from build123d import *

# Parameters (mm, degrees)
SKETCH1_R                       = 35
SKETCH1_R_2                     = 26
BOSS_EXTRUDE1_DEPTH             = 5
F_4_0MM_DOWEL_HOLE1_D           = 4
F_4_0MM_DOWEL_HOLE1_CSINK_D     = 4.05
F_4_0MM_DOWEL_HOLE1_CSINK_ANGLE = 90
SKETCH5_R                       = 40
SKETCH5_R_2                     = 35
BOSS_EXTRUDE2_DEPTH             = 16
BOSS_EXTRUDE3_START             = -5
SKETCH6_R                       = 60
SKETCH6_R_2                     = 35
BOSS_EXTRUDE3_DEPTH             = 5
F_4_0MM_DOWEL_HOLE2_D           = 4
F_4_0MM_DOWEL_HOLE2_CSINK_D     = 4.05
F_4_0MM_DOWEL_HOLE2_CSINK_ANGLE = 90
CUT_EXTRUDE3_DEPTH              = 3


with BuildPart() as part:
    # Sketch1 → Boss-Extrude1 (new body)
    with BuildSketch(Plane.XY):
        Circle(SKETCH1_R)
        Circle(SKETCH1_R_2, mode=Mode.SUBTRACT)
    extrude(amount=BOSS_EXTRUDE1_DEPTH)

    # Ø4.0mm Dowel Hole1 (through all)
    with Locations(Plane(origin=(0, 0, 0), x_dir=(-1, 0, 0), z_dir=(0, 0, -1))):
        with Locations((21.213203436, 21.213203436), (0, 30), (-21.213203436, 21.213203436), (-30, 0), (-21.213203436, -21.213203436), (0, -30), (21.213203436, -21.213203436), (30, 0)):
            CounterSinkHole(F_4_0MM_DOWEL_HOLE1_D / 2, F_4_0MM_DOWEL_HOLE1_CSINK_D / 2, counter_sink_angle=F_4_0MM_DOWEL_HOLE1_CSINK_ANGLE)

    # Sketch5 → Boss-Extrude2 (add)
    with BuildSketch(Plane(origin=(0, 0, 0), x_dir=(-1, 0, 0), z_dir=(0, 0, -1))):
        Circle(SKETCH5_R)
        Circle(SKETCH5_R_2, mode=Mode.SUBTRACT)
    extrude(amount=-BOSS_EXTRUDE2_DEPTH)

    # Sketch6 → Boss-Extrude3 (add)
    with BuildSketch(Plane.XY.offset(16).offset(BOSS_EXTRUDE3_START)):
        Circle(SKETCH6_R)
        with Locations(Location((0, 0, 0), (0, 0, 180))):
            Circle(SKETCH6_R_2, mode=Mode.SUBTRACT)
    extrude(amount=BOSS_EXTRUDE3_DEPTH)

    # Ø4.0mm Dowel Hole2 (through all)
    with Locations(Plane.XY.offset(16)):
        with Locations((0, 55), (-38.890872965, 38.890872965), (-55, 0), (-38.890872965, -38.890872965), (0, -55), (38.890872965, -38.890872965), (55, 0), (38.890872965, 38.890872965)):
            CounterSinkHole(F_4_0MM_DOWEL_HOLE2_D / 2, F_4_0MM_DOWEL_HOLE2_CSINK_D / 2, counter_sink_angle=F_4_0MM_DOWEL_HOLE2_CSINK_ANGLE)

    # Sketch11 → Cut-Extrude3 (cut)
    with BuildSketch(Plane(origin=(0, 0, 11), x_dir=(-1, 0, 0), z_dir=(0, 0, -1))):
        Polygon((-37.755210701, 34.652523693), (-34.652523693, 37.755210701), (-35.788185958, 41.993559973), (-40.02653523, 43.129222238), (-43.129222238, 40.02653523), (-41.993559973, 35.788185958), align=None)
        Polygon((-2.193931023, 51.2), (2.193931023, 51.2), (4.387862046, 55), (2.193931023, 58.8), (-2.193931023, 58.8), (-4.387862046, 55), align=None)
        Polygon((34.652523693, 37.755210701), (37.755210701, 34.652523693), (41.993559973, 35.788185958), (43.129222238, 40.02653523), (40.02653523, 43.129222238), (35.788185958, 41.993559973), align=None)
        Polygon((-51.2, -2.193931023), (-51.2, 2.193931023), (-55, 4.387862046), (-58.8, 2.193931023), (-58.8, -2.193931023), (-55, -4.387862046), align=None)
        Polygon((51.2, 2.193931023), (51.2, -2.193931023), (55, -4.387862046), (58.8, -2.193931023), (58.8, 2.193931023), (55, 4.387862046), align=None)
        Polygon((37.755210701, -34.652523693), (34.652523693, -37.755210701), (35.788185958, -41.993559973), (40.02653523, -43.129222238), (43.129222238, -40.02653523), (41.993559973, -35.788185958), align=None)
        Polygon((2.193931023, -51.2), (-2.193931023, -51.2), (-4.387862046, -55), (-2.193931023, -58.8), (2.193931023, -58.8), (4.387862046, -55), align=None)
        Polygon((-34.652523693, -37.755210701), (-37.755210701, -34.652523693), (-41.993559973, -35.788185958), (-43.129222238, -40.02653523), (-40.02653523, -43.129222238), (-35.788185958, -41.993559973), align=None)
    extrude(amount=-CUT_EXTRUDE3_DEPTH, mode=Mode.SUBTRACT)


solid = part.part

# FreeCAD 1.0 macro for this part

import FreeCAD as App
import Part
import Sketcher
Q = App.Units.Quantity


def add_polygon(sketch, points):
    """Adds a closed chain of lines whose ends are joined by coincident constraints."""
    first, n = sketch.GeometryCount, len(points)
    for a, b in zip(points, points[1:] + points[:1]):
        sketch.addGeometry(Part.LineSegment(App.Vector(*a, 0), App.Vector(*b, 0)), False)
    for i in range(n):
        sketch.addConstraint(Sketcher.Constraint("Coincident", first + i, 2, first + (i + 1) % n, 1))

doc = App.newDocument("Part")
body = doc.addObject("PartDesign::Body", "Body")

sketch1 = body.newObject("Sketcher::SketchObject", "Sketch")
sketch1.AttachmentSupport = (doc.getObject("XY_Plane"), [""])
sketch1.MapMode = "FlatFace"
sketch1.addGeometry(Part.Circle(App.Vector(0, 0, 0), App.Vector(0, 0, 1), 35), False)
sketch1.addGeometry(Part.Circle(App.Vector(0, 0, 0), App.Vector(0, 0, 1), 26), False)
sketch1.addConstraint(Sketcher.Constraint("Coincident", 0, 3, -1, 1))
sketch1.addConstraint(Sketcher.Constraint("Coincident", 1, 3, -1, 1))
sketch1.addConstraint(Sketcher.Constraint("Diameter", 0, Q("70 mm")))
sketch1.addConstraint(Sketcher.Constraint("Diameter", 1, Q("52 mm")))
pad1 = body.newObject("PartDesign::Pad", "Pad")
pad1.Profile = sketch1
pad1.Length = 5

sketch2 = body.newObject("Sketcher::SketchObject", "Sketch001")
sketch2.AttachmentSupport = (doc.getObject("XY_Plane"), [""])
sketch2.MapMode = "FlatFace"
sketch2.addGeometry(Part.Circle(App.Vector(-21.2, 21.2, 0), App.Vector(0, 0, 1), 2), False)
sketch2.addGeometry(Part.Circle(App.Vector(0, 30, 0), App.Vector(0, 0, 1), 2), False)
sketch2.addGeometry(Part.Circle(App.Vector(21.2, 21.2, 0), App.Vector(0, 0, 1), 2), False)
sketch2.addGeometry(Part.Circle(App.Vector(30, 0, 0), App.Vector(0, 0, 1), 2), False)
sketch2.addGeometry(Part.Circle(App.Vector(21.2, -21.2, 0), App.Vector(0, 0, 1), 2), False)
sketch2.addGeometry(Part.Circle(App.Vector(0, -30, 0), App.Vector(0, 0, 1), 2), False)
sketch2.addGeometry(Part.Circle(App.Vector(-21.2, -21.2, 0), App.Vector(0, 0, 1), 2), False)
sketch2.addGeometry(Part.Circle(App.Vector(-30, 0, 0), App.Vector(0, 0, 1), 2), False)
sketch2.addConstraint(Sketcher.Constraint("Equal", 0, 1))
sketch2.addConstraint(Sketcher.Constraint("Equal", 1, 2))
sketch2.addConstraint(Sketcher.Constraint("Equal", 2, 3))
sketch2.addConstraint(Sketcher.Constraint("Equal", 3, 4))
sketch2.addConstraint(Sketcher.Constraint("Equal", 4, 5))
sketch2.addConstraint(Sketcher.Constraint("Equal", 5, 6))
sketch2.addConstraint(Sketcher.Constraint("Equal", 6, 7))
sketch2.addConstraint(Sketcher.Constraint("Symmetric", 0, 3, 4, 3, -1, 1))
sketch2.addConstraint(Sketcher.Constraint("Symmetric", 1, 3, 5, 3, -1, 1))
sketch2.addConstraint(Sketcher.Constraint("Symmetric", 2, 3, 6, 3, -1, 1))
sketch2.addConstraint(Sketcher.Constraint("Symmetric", 3, 3, 7, 3, -1, 1))
sketch2.addConstraint(Sketcher.Constraint("Symmetric", 0, 3, 2, 3, -2))
sketch2.addConstraint(Sketcher.Constraint("PointOnObject", 1, 3, -2))
sketch2.addConstraint(Sketcher.Constraint("PointOnObject", 3, 3, -1))
sketch2.addConstraint(Sketcher.Constraint("Diameter", 0, Q("4 mm")))
sketch2.addConstraint(Sketcher.Constraint("DistanceY", -1, 1, 1, 3, Q("30 mm")))
sketch2.addConstraint(Sketcher.Constraint("DistanceX", -1, 1, 3, 3, Q("30 mm")))
sketch2.addConstraint(Sketcher.Constraint("DistanceX", 0, 3, -1, 1, Q("21.213203 mm")))
sketch2.addConstraint(Sketcher.Constraint("DistanceY", -1, 1, 0, 3, Q("21.213203 mm")))
doc.recompute()
hole = body.newObject("PartDesign::Hole", "Hole")
hole.Profile = sketch2
hole.ThreadType = "None"
hole.Diameter = 4
hole.DepthType = "ThroughAll"
hole.HoleCutType = "Countersink"
hole.HoleCutDiameter = 4.05
hole.HoleCutCountersinkAngle = 90
hole.Reversed = True

sketch3 = body.newObject("Sketcher::SketchObject", "Sketch002")
sketch3.AttachmentSupport = (doc.getObject("XY_Plane"), [""])
sketch3.MapMode = "FlatFace"
sketch3.addGeometry(Part.Circle(App.Vector(0, 0, 0), App.Vector(0, 0, 1), 40), False)
sketch3.addGeometry(Part.Circle(App.Vector(0, 0, 0), App.Vector(0, 0, 1), 35), False)
sketch3.addConstraint(Sketcher.Constraint("Coincident", 0, 3, -1, 1))
sketch3.addConstraint(Sketcher.Constraint("Coincident", 1, 3, -1, 1))
sketch3.addConstraint(Sketcher.Constraint("Diameter", 0, Q("80 mm")))
sketch3.addConstraint(Sketcher.Constraint("Diameter", 1, Q("70 mm")))
pad2 = body.newObject("PartDesign::Pad", "Pad001")
pad2.Profile = sketch3
pad2.Length = 16

sketch4 = body.newObject("Sketcher::SketchObject", "Sketch003")
sketch4.AttachmentSupport = (doc.getObject("XY_Plane"), [""])
sketch4.MapMode = "FlatFace"
sketch4.AttachmentOffset = App.Placement(App.Vector(0, 0, 11), App.Rotation())
sketch4.addGeometry(Part.Circle(App.Vector(0, 0, 0), App.Vector(0, 0, 1), 60), False)
sketch4.addGeometry(Part.Circle(App.Vector(0, 0, 0), App.Vector(0, 0, 1), 35), False)
sketch4.addConstraint(Sketcher.Constraint("Coincident", 0, 3, -1, 1))
sketch4.addConstraint(Sketcher.Constraint("Coincident", 1, 3, -1, 1))
sketch4.addConstraint(Sketcher.Constraint("Diameter", 0, Q("120 mm")))
sketch4.addConstraint(Sketcher.Constraint("Diameter", 1, Q("70 mm")))
pad3 = body.newObject("PartDesign::Pad", "Pad002")
pad3.Profile = sketch4
pad3.Length = 5

sketch5 = body.newObject("Sketcher::SketchObject", "Sketch004")
sketch5.AttachmentSupport = (doc.getObject("XY_Plane"), [""])
sketch5.MapMode = "FlatFace"
sketch5.AttachmentOffset = App.Placement(App.Vector(0, 0, 16), App.Rotation())
sketch5.addGeometry(Part.Circle(App.Vector(0, 55, 0), App.Vector(0, 0, 1), 2), False)
sketch5.addGeometry(Part.Circle(App.Vector(-38.9, 38.9, 0), App.Vector(0, 0, 1), 2), False)
sketch5.addGeometry(Part.Circle(App.Vector(-55, 0, 0), App.Vector(0, 0, 1), 2), False)
sketch5.addGeometry(Part.Circle(App.Vector(-38.9, -38.9, 0), App.Vector(0, 0, 1), 2), False)
sketch5.addGeometry(Part.Circle(App.Vector(0, -55, 0), App.Vector(0, 0, 1), 2), False)
sketch5.addGeometry(Part.Circle(App.Vector(38.9, -38.9, 0), App.Vector(0, 0, 1), 2), False)
sketch5.addGeometry(Part.Circle(App.Vector(55, 0, 0), App.Vector(0, 0, 1), 2), False)
sketch5.addGeometry(Part.Circle(App.Vector(38.9, 38.9, 0), App.Vector(0, 0, 1), 2), False)
sketch5.addConstraint(Sketcher.Constraint("Equal", 0, 1))
sketch5.addConstraint(Sketcher.Constraint("Equal", 1, 2))
sketch5.addConstraint(Sketcher.Constraint("Equal", 2, 3))
sketch5.addConstraint(Sketcher.Constraint("Equal", 3, 4))
sketch5.addConstraint(Sketcher.Constraint("Equal", 4, 5))
sketch5.addConstraint(Sketcher.Constraint("Equal", 5, 6))
sketch5.addConstraint(Sketcher.Constraint("Equal", 6, 7))
sketch5.addConstraint(Sketcher.Constraint("Symmetric", 0, 3, 4, 3, -1, 1))
sketch5.addConstraint(Sketcher.Constraint("Symmetric", 1, 3, 5, 3, -1, 1))
sketch5.addConstraint(Sketcher.Constraint("Symmetric", 2, 3, 6, 3, -1, 1))
sketch5.addConstraint(Sketcher.Constraint("Symmetric", 3, 3, 7, 3, -1, 1))
sketch5.addConstraint(Sketcher.Constraint("Symmetric", 3, 3, 5, 3, -2))
sketch5.addConstraint(Sketcher.Constraint("PointOnObject", 0, 3, -2))
sketch5.addConstraint(Sketcher.Constraint("PointOnObject", 2, 3, -1))
sketch5.addConstraint(Sketcher.Constraint("Diameter", 0, Q("4 mm")))
sketch5.addConstraint(Sketcher.Constraint("DistanceY", -1, 1, 0, 3, Q("55 mm")))
sketch5.addConstraint(Sketcher.Constraint("DistanceX", 2, 3, -1, 1, Q("55 mm")))
sketch5.addConstraint(Sketcher.Constraint("DistanceX", 1, 3, -1, 1, Q("38.890873 mm")))
sketch5.addConstraint(Sketcher.Constraint("DistanceY", -1, 1, 1, 3, Q("38.890873 mm")))
doc.recompute()
hole2 = body.newObject("PartDesign::Hole", "Hole001")
hole2.Profile = sketch5
hole2.ThreadType = "None"
hole2.Diameter = 4
hole2.DepthType = "ThroughAll"
hole2.HoleCutType = "Countersink"
hole2.HoleCutDiameter = 4.05
hole2.HoleCutCountersinkAngle = 90

sketch6 = body.newObject("Sketcher::SketchObject", "Sketch005")
sketch6.AttachmentSupport = (doc.getObject("XY_Plane"), [""])
sketch6.MapMode = "FlatFace"
sketch6.AttachmentOffset = App.Placement(App.Vector(0, 0, 11), App.Rotation())
add_polygon(sketch6, [(37.8, 34.7), (34.7, 37.8), (35.8, 42), (40, 43.1), (43.1, 40), (42, 35.8)])
add_polygon(sketch6, [(2.2, 51.2), (-2.2, 51.2), (-4.4, 55), (-2.2, 58.8), (2.2, 58.8), (4.4, 55)])
add_polygon(sketch6, [(-34.7, 37.8), (-37.8, 34.7), (-42, 35.8), (-43.1, 40), (-40, 43.1), (-35.8, 42)])
add_polygon(sketch6, [(51.2, -2.2), (51.2, 2.2), (55, 4.4), (58.8, 2.2), (58.8, -2.2), (55, -4.4)])
add_polygon(sketch6, [(-51.2, 2.2), (-51.2, -2.2), (-55, -4.4), (-58.8, -2.2), (-58.8, 2.2), (-55, 4.4)])
add_polygon(sketch6, [(-37.8, -34.7), (-34.7, -37.8), (-35.8, -42), (-40, -43.1), (-43.1, -40), (-42, -35.8)])
add_polygon(sketch6, [(-2.2, -51.2), (2.2, -51.2), (4.4, -55), (2.2, -58.8), (-2.2, -58.8), (-4.4, -55)])
add_polygon(sketch6, [(34.7, -37.8), (37.8, -34.7), (42, -35.8), (43.1, -40), (40, -43.1), (35.8, -42)])
sketch6.addConstraint(Sketcher.Constraint("Horizontal", 6))
sketch6.addConstraint(Sketcher.Constraint("Horizontal", 9))
sketch6.addConstraint(Sketcher.Constraint("Vertical", 18))
sketch6.addConstraint(Sketcher.Constraint("Vertical", 21))
sketch6.addConstraint(Sketcher.Constraint("Vertical", 24))
sketch6.addConstraint(Sketcher.Constraint("Vertical", 27))
sketch6.addConstraint(Sketcher.Constraint("Horizontal", 36))
sketch6.addConstraint(Sketcher.Constraint("Horizontal", 39))
sketch6.addConstraint(Sketcher.Constraint("Symmetric", 18, 2, 24, 2, -1, 1))
sketch6.addConstraint(Sketcher.Constraint("Symmetric", 19, 2, 25, 2, -1, 1))
sketch6.addConstraint(Sketcher.Constraint("Symmetric", 20, 2, 26, 2, -1, 1))
sketch6.addConstraint(Sketcher.Constraint("Symmetric", 22, 2, 28, 2, -1, 1))
sketch6.addConstraint(Sketcher.Constraint("Symmetric", 0, 2, 30, 2, -1, 1))
sketch6.addConstraint(Sketcher.Constraint("Symmetric", 1, 2, 31, 2, -1, 1))
sketch6.addConstraint(Sketcher.Constraint("Symmetric", 2, 2, 32, 2, -1, 1))
sketch6.addConstraint(Sketcher.Constraint("Symmetric", 3, 2, 33, 2, -1, 1))
sketch6.addConstraint(Sketcher.Constraint("Symmetric", 4, 2, 34, 2, -1, 1))
sketch6.addConstraint(Sketcher.Constraint("Symmetric", 5, 2, 35, 2, -1, 1))
sketch6.addConstraint(Sketcher.Constraint("Symmetric", 6, 2, 36, 2, -1, 1))
sketch6.addConstraint(Sketcher.Constraint("Symmetric", 7, 2, 37, 2, -1, 1))
sketch6.addConstraint(Sketcher.Constraint("Symmetric", 8, 2, 38, 2, -1, 1))
sketch6.addConstraint(Sketcher.Constraint("Symmetric", 10, 2, 40, 2, -1, 1))
sketch6.addConstraint(Sketcher.Constraint("Symmetric", 12, 2, 42, 2, -1, 1))
sketch6.addConstraint(Sketcher.Constraint("Symmetric", 13, 2, 43, 2, -1, 1))
sketch6.addConstraint(Sketcher.Constraint("Symmetric", 14, 2, 44, 2, -1, 1))
sketch6.addConstraint(Sketcher.Constraint("Symmetric", 15, 2, 45, 2, -1, 1))
sketch6.addConstraint(Sketcher.Constraint("Symmetric", 16, 2, 46, 2, -1, 1))
sketch6.addConstraint(Sketcher.Constraint("Symmetric", 17, 2, 47, 2, -1, 1))
sketch6.addConstraint(Sketcher.Constraint("Symmetric", 7, 2, 10, 2, -2))
sketch6.addConstraint(Sketcher.Constraint("Symmetric", 5, 2, 12, 2, -2))
sketch6.addConstraint(Sketcher.Constraint("Symmetric", 4, 2, 13, 2, -2))
sketch6.addConstraint(Sketcher.Constraint("Symmetric", 3, 2, 14, 2, -2))
sketch6.addConstraint(Sketcher.Constraint("Symmetric", 2, 2, 15, 2, -2))
sketch6.addConstraint(Sketcher.Constraint("Symmetric", 1, 2, 16, 2, -2))
sketch6.addConstraint(Sketcher.Constraint("Symmetric", 0, 2, 17, 2, -2))
sketch6.addConstraint(Sketcher.Constraint("Symmetric", 22, 2, 25, 2, -2))
sketch6.addConstraint(Sketcher.Constraint("Parallel", 0, 3))
sketch6.addConstraint(Sketcher.Constraint("Parallel", 1, 4))
sketch6.addConstraint(Sketcher.Constraint("Parallel", 2, 5))
sketch6.addConstraint(Sketcher.Constraint("Parallel", 7, 10))
sketch6.addConstraint(Sketcher.Constraint("Parallel", 8, 11))
sketch6.addConstraint(Sketcher.Constraint("Perpendicular", 3, 12))
sketch6.addConstraint(Sketcher.Constraint("Perpendicular", 4, 13))
sketch6.addConstraint(Sketcher.Constraint("Perpendicular", 10, 19))
sketch6.addConstraint(Sketcher.Constraint("Perpendicular", 11, 20))
sketch6.addConstraint(Sketcher.Constraint("Parallel", 19, 22))
sketch6.addConstraint(Sketcher.Constraint("Parallel", 20, 23))
sketch6.addConstraint(Sketcher.Constraint("Parallel", 25, 28))
sketch6.addConstraint(Sketcher.Constraint("Parallel", 26, 29))
sketch6.addConstraint(Sketcher.Constraint("Parallel", 37, 40))
sketch6.addConstraint(Sketcher.Constraint("Parallel", 38, 41))
sketch6.addConstraint(Sketcher.Constraint("Horizontal", 18, 2, 20, 2))
sketch6.addConstraint(Sketcher.Constraint("Horizontal", 21, 2, 23, 2))
sketch6.addConstraint(Sketcher.Constraint("Vertical", 6, 2, 8, 2))
sketch6.addConstraint(Sketcher.Constraint("Equal", 39, 18))
sketch6.addConstraint(Sketcher.Constraint("Equal", 0, 1))
sketch6.addConstraint(Sketcher.Constraint("Equal", 1, 2))
sketch6.addConstraint(Sketcher.Constraint("Equal", 2, 3))
sketch6.addConstraint(Sketcher.Constraint("Equal", 5, 7))
sketch6.addConstraint(Sketcher.Constraint("Equal", 17, 19))
sketch6.addConstraint(Sketcher.Constraint("Angle", 1, Q("75 deg")))
sketch6.addConstraint(Sketcher.Constraint("Angle", 7, Q("120 deg")))
sketch6.addConstraint(Sketcher.Constraint("DistanceY", -1, 1, 7, 2, Q("55 mm")))
sketch6.addConstraint(Sketcher.Constraint("DistanceX", -1, 1, 19, 2, Q("55 mm")))
sketch6.addConstraint(Sketcher.Constraint("DistanceY", -1, 1, 6, 2, Q("51.2 mm")))
sketch6.addConstraint(Sketcher.Constraint("DistanceX", 6, 2, 6, 1, Q("4.387862 mm")))
sketch6.addConstraint(Sketcher.Constraint("DistanceY", -1, 1, 0, 2, Q("37.755211 mm")))
sketch6.addConstraint(Sketcher.Constraint("DistanceX", -1, 1, 4, 2, Q("41.99356 mm")))
pocket1 = body.newObject("PartDesign::Pocket", "Pocket")
pocket1.Profile = sketch6
pocket1.Length = 3
pocket1.Reversed = True

doc.recompute()
